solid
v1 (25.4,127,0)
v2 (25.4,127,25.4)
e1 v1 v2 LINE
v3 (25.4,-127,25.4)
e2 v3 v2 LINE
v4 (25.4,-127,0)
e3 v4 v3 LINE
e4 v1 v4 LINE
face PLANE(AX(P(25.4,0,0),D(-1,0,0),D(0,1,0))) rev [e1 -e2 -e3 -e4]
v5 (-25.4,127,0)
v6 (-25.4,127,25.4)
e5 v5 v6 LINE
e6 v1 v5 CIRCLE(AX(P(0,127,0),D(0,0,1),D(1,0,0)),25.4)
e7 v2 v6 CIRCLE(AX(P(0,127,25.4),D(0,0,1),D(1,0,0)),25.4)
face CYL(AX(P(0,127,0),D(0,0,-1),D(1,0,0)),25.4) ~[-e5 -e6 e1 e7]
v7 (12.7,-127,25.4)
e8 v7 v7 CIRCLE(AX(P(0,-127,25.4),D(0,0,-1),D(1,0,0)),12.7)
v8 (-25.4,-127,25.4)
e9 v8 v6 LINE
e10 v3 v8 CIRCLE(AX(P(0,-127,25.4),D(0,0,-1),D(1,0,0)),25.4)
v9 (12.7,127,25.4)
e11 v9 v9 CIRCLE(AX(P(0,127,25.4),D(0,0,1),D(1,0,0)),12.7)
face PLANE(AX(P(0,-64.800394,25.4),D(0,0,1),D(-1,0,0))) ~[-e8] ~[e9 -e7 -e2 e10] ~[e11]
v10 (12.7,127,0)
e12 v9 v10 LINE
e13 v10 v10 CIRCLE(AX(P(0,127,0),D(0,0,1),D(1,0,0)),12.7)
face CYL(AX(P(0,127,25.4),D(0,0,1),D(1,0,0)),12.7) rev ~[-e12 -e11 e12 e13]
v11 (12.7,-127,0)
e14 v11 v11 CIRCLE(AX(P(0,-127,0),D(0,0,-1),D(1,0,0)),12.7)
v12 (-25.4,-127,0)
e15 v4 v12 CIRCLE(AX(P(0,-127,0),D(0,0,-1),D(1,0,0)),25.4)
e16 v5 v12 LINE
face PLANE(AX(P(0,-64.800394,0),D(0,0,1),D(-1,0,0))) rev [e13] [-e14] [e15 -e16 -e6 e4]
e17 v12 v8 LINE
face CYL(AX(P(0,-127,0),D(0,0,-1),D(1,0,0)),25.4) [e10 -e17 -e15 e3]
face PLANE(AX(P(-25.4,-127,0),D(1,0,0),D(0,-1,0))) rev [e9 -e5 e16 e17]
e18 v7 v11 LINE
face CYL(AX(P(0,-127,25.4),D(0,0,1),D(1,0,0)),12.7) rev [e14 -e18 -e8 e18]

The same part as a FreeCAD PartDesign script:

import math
import FreeCAD as App
import Part
import Sketcher
Q = App.Units.Quantity

doc = App.newDocument("Part")
body = doc.addObject("PartDesign::Body", "Body")

# Sketch on XY plane
sketch1 = body.newObject("Sketcher::SketchObject", "Sketch")
sketch1.AttachmentSupport = (doc.getObject("XY_Plane"), [""])
sketch1.MapMode = "FlatFace"
sketch1.addGeometry([
    Part.LineSegment(App.Vector(-25, 127, 0), App.Vector(-25, 0, 0)),
    Part.LineSegment(App.Vector(-25, 0, 0), App.Vector(25, 0, 0)),
    Part.LineSegment(App.Vector(25, 0, 0), App.Vector(25, 127, 0)),
    Part.ArcOfCircle(Part.Circle(App.Vector(0, 127, 0), App.Vector(0, 0, 1), 25), math.radians(0), math.radians(180)),
], False)
sketch1.addConstraint([
    Sketcher.Constraint("Coincident", 0, 2, 1, 1),
    Sketcher.Constraint("Coincident", 1, 2, 2, 1),
    Sketcher.Constraint("Tangent", 2, 2, 3, 1),
    Sketcher.Constraint("Tangent", 3, 2, 0, 1),
    Sketcher.Constraint("Vertical", 0),
    Sketcher.Constraint("Horizontal", 1),
    Sketcher.Constraint("Vertical", 2),
    Sketcher.Constraint("Symmetric", 0, 2, 1, 2, -1, 1),
    Sketcher.Constraint("Radius", 3, Q("1 in")),
    Sketcher.Constraint("DistanceY", 0, 2, 0, 1, Q("5 in")),
])
pad1 = body.newObject("PartDesign::Pad", "Pad")
pad1.Profile = sketch1
pad1.Length = Q("1 in")

# Sketch on XY plane
sketch2 = body.newObject("Sketcher::SketchObject", "Sketch001")
sketch2.AttachmentSupport = (doc.getObject("XY_Plane"), [""])
sketch2.MapMode = "FlatFace"
sketch2.AttachmentOffset = App.Placement(App.Vector(0, 0, 1 * 25.4), App.Rotation())
sketch2.addGeometry(Part.Circle(App.Vector(0, 127, 0), App.Vector(0, 0, 1), 13), False)
sketch2.addConstraint([
    Sketcher.Constraint("PointOnObject", 0, 3, -2),
    Sketcher.Constraint("Diameter", 0, Q("1 in")),
    Sketcher.Constraint("DistanceY", -1, 1, 0, 3, Q("5 in")),
])
pocket1 = body.newObject("PartDesign::Pocket", "Pocket")
pocket1.Profile = sketch2
pocket1.Length = Q("1 in")
body2 = doc.addObject("PartDesign::Body", "Body001")
doc.recompute()

body2.BaseFeature = body
doc.recompute()

mirroring = doc.addObject("Part::Mirroring", "Mirroring")
mirroring.Source = body
mirroring.Base = App.Vector(0, 0, 12.7)
mirroring.Normal = App.Vector(0, -1, 0)
body3 = doc.addObject("PartDesign::Body", "Body002")
body3.BaseFeature = mirroring
boolean = body2.newObject("PartDesign::Boolean", "Boolean")
boolean.Type = "Fuse"
boolean.addObjects([body3])
doc.recompute()
mirroring.Visibility = False

doc.recompute()
